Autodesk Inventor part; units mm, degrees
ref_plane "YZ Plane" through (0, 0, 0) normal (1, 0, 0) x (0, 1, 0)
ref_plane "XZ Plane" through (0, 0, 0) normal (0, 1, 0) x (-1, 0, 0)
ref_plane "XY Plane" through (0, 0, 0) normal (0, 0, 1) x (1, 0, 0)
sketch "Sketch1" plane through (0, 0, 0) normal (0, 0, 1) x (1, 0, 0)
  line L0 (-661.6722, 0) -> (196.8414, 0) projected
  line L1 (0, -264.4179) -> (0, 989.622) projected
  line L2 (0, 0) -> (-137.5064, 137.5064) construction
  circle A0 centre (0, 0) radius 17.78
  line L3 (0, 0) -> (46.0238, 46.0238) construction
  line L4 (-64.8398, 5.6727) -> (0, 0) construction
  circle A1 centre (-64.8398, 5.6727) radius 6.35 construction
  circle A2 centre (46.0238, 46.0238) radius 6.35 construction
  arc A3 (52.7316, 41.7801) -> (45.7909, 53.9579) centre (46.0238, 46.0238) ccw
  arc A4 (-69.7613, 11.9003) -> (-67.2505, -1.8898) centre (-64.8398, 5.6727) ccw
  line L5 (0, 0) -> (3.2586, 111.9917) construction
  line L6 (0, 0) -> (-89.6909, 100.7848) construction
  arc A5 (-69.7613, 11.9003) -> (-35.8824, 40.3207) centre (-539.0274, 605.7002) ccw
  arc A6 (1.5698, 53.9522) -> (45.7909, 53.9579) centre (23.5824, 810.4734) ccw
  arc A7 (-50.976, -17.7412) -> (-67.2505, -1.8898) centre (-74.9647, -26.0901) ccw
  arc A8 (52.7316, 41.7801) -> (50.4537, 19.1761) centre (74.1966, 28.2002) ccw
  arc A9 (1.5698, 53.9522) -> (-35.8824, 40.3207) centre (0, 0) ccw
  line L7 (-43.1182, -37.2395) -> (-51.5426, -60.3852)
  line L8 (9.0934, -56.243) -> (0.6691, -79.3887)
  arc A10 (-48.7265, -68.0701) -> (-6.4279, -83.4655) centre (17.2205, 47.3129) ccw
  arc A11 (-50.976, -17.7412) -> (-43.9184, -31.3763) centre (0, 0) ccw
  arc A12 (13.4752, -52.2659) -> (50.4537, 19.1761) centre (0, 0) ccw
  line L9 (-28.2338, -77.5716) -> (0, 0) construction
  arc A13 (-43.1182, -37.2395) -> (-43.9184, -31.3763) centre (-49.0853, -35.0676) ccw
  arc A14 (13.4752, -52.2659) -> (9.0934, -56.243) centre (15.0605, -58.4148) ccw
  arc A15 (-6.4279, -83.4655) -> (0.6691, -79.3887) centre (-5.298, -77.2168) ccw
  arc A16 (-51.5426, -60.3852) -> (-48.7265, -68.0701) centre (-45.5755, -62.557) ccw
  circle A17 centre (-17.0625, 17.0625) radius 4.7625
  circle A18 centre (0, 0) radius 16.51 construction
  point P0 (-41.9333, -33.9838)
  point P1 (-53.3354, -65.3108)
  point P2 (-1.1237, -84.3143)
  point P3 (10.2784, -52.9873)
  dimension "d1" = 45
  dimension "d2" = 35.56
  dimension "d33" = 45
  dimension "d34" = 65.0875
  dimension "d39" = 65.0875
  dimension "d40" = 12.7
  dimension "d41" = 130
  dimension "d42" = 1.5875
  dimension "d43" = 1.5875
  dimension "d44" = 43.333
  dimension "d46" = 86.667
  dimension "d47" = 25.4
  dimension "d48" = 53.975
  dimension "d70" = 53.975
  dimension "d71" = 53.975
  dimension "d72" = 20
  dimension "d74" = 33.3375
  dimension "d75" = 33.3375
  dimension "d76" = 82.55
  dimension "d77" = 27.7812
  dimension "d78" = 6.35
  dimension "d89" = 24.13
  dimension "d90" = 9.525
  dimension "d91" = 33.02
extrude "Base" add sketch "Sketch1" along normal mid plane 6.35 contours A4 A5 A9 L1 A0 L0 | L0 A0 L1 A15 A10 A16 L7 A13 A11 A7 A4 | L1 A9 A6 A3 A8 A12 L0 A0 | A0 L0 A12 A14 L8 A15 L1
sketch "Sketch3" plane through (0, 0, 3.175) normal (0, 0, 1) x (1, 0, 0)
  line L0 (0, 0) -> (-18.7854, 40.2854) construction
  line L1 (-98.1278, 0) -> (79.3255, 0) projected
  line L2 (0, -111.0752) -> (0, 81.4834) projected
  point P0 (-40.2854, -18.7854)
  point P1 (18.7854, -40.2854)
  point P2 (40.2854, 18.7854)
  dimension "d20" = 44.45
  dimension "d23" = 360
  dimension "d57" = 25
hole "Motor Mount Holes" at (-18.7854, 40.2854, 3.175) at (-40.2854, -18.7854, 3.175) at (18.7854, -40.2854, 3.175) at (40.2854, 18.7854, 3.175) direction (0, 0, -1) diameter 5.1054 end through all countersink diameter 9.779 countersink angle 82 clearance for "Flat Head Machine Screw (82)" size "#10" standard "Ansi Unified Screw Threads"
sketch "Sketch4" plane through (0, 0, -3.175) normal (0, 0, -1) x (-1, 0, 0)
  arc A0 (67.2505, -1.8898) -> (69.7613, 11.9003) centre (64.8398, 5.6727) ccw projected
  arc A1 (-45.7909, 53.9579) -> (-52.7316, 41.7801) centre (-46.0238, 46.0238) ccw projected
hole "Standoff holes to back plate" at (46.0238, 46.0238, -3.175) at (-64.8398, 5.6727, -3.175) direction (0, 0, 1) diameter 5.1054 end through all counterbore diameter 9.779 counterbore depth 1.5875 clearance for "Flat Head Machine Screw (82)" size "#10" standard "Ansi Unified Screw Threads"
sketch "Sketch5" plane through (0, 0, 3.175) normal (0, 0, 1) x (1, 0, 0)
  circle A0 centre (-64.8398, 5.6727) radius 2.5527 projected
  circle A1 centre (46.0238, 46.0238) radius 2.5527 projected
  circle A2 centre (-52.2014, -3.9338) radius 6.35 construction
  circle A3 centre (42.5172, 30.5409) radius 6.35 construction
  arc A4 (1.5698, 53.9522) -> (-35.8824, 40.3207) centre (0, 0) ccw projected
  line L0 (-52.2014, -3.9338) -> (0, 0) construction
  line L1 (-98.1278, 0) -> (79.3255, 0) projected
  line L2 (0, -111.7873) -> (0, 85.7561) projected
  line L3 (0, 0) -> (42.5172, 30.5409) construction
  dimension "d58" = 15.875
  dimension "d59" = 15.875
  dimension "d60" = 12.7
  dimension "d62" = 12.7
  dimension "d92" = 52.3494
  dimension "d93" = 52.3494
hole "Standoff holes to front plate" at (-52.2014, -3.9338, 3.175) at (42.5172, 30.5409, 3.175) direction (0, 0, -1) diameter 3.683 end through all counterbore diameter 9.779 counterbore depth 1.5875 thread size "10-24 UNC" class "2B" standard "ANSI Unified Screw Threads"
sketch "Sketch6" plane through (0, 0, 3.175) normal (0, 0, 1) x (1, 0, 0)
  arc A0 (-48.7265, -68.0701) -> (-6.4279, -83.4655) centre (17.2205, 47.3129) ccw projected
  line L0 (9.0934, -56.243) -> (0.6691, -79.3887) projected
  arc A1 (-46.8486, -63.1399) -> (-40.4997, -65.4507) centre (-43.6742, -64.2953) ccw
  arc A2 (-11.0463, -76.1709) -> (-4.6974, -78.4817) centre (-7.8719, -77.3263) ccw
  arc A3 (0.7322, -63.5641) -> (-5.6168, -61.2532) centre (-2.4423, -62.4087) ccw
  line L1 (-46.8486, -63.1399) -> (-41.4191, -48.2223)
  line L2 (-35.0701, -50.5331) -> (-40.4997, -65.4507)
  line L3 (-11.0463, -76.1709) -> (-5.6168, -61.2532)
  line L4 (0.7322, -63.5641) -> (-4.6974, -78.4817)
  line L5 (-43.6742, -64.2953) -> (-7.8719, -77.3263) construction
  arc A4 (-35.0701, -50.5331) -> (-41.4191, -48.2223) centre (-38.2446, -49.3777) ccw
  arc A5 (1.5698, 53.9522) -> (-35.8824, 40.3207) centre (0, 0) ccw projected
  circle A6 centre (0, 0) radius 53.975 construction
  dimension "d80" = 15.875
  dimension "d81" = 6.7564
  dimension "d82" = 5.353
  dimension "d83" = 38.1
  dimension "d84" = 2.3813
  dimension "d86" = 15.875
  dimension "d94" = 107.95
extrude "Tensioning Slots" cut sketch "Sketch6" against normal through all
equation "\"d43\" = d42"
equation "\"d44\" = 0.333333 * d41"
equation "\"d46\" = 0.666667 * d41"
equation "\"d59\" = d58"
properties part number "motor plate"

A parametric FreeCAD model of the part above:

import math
import FreeCAD as App
import Part
import Sketcher

V = App.Vector
Q = App.Units.Quantity

doc = App.newDocument("Part")
body = doc.addObject("PartDesign::Body", "Body")

# Sketch on XY plane
sketch1 = body.newObject("Sketcher::SketchObject", "Sketch")
sketch1.AttachmentSupport = (doc.getObject("XY_Plane"), [""])
sketch1.MapMode = "FlatFace"
sketch1.addGeometry(Part.ArcOfCircle(Part.Circle(V(-64.8, 5.7, 0), V(0, 0, 1), 7.9), math.radians(128), math.radians(252)), False)
sketch1.addGeometry(Part.ArcOfCircle(Part.Circle(V(-75, -26.1, 0), V(0, 0, 1), 25.4), math.radians(19), math.radians(72)), False)
sketch1.addGeometry(Part.ArcOfCircle(Part.Circle(V(0, 0, 0), V(0, 0, 1), 54), math.radians(-160.81), math.radians(-144.46)), False)
sketch1.addGeometry(Part.ArcOfCircle(Part.Circle(V(-49.1, -35.1, 0), V(0, 0, 1), 6.4), math.radians(-20), math.radians(36)), False)
sketch1.addGeometry(Part.LineSegment(V(-43.1, -37.2, 0), V(-51.5, -60.4, 0)), False)
sketch1.addGeometry(Part.ArcOfCircle(Part.Circle(V(-45.6, -62.6, 0), V(0, 0, 1), 6.4), math.radians(160), math.radians(240)), False)
sketch1.addGeometry(Part.ArcOfCircle(Part.Circle(V(17.2, 47.3, 0), V(0, 0, 1), 132.9), math.radians(-119.75), math.radians(-100.25)), False)
sketch1.addGeometry(Part.ArcOfCircle(Part.Circle(V(-5.3, -77.2, 0), V(0, 0, 1), 6.4), math.radians(-100), math.radians(-20)), False)
sketch1.addGeometry(Part.LineSegment(V(0.7, -79.4, 0), V(9.1, -56.2, 0)), False)
sketch1.addGeometry(Part.ArcOfCircle(Part.Circle(V(15.1, -58.4, 0), V(0, 0, 1), 6.3), math.radians(104), math.radians(160)), False)
sketch1.addGeometry(Part.ArcOfCircle(Part.Circle(V(0, 0, 0), V(0, 0, 1), 54), math.radians(-76), math.radians(21)), False)
sketch1.addGeometry(Part.ArcOfCircle(Part.Circle(V(74.2, 28.2, 0), V(0, 0, 1), 25.4), math.radians(148), math.radians(201)), False)
sketch1.addGeometry(Part.ArcOfCircle(Part.Circle(V(46, 46, 0), V(0, 0, 1), 7.9), math.radians(-32), math.radians(92)), False)
sketch1.addGeometry(Part.ArcOfCircle(Part.Circle(V(23.6, 810.5, 0), V(0, 0, 1), 756.9), math.radians(-91.67), math.radians(-88.32)), False)
sketch1.addGeometry(Part.ArcOfCircle(Part.Circle(V(0, 0, 0), V(0, 0, 1), 54), math.radians(88), math.radians(132)), False)
sketch1.addGeometry(Part.ArcOfCircle(Part.Circle(V(-539, 605.6, 0), V(0, 0, 1), 756.7), math.radians(-51.68), math.radians(-48.33)), False)
sketch1.addGeometry(Part.Circle(V(0, 0, 0), V(0, 0, 1), 17.8), False)
sketch1.addGeometry(Part.Circle(V(-17.1, 17.1, 0), V(0, 0, 1), 4.8), False)
sketch1.addConstraint(Sketcher.Constraint("Tangent", 0, 2, 1, 2))
sketch1.addConstraint(Sketcher.Constraint("Tangent", 1, 1, 2, 1))
sketch1.addConstraint(Sketcher.Constraint("Tangent", 2, 2, 3, 2))
sketch1.addConstraint(Sketcher.Constraint("Tangent", 3, 1, 4, 1))
sketch1.addConstraint(Sketcher.Constraint("Tangent", 4, 2, 5, 1))
sketch1.addConstraint(Sketcher.Constraint("Tangent", 5, 2, 6, 1))
sketch1.addConstraint(Sketcher.Constraint("Tangent", 6, 2, 7, 1))
sketch1.addConstraint(Sketcher.Constraint("Tangent", 7, 2, 8, 1))
sketch1.addConstraint(Sketcher.Constraint("Tangent", 8, 2, 9, 2))
sketch1.addConstraint(Sketcher.Constraint("Tangent", 9, 1, 10, 1))
sketch1.addConstraint(Sketcher.Constraint("Tangent", 10, 2, 11, 2))
sketch1.addConstraint(Sketcher.Constraint("Tangent", 11, 1, 12, 1))
sketch1.addConstraint(Sketcher.Constraint("Tangent", 12, 2, 13, 2))
sketch1.addConstraint(Sketcher.Constraint("Tangent", 13, 1, 14, 1))
sketch1.addConstraint(Sketcher.Constraint("Tangent", 14, 2, 15, 2))
sketch1.addConstraint(Sketcher.Constraint("Tangent", 15, 1, 0, 1))
sketch1.addConstraint(Sketcher.Constraint("Coincident", 10, 3, -1, 1))
sketch1.addConstraint(Sketcher.Constraint("Coincident", 14, 3, -1, 1))
sketch1.addConstraint(Sketcher.Constraint("Coincident", 16, 3, -1, 1))
sketch1.addConstraint(Sketcher.Constraint("Equal", 3, 5))
sketch1.addConstraint(Sketcher.Constraint("Equal", 5, 7))
sketch1.addConstraint(Sketcher.Constraint("Equal", 7, 9))
sketch1.addConstraint(Sketcher.Constraint("Equal", 1, 11))
sketch1.addConstraint(Sketcher.Constraint("Equal", 0, 12))
sketch1.addConstraint(Sketcher.Constraint("Equal", 10, 14))
sketch1.addConstraint(Sketcher.Constraint("Parallel", 4, 8))
sketch1.addConstraint(Sketcher.Constraint("Equal", 4, 8))
sketch1.addConstraint(Sketcher.Constraint("Radius", 1, Q("1 in")))
sketch1.addConstraint(Sketcher.Constraint("Diameter", 16, Q("1.4 in")))
sketch1.addConstraint(Sketcher.Constraint("Radius", 3, Q("0.25 in")))
sketch1.addConstraint(Sketcher.Constraint("Diameter", 17, Q("0.375 in")))
sketch1.addConstraint(Sketcher.Constraint("Radius", 10, Q("2.125 in")))
sketch1.addConstraint(Sketcher.Constraint("Angle", 4, Q("-110 deg")))
sketch1.addConstraint(Sketcher.Constraint("Radius", 0, Q("0.3125 in")))
sketch1.addConstraint(Sketcher.Constraint("Radius", 2, 53.973))
sketch1.addConstraint(Sketcher.Constraint("Radius", 6, 132.8994))
sketch1.addConstraint(Sketcher.Constraint("Radius", 13, 756.8713))
sketch1.addConstraint(Sketcher.Constraint("Radius", 15, 756.7457))
sketch1.addConstraint(Sketcher.Constraint("DistanceY", 7, 3, 2, 3, Q("3.04 in")))
sketch1.addConstraint(Sketcher.Constraint("DistanceX", -1, 1, 8, 2, Q("0.358 in")))
sketch1.addConstraint(Sketcher.Constraint("DistanceX", 2, 3, 9, 3, Q("0.593 in")))
sketch1.addConstraint(Sketcher.Constraint("DistanceX", 6, 3, 12, 3, Q("1.134 in")))
sketch1.addConstraint(Sketcher.Constraint("DistanceY", 2, 3, 12, 3, Q("1.812 in")))
sketch1.addConstraint(Sketcher.Constraint("DistanceY", 10, 2, 12, 3, Q("1.057 in")))
sketch1.addConstraint(Sketcher.Constraint("DistanceX", 3, 3, -1, 1, Q("1.9325 in")))
sketch1.addConstraint(Sketcher.Constraint("DistanceY", 0, 2, -1, 1, Q("0.0744 in")))
sketch1.addConstraint(Sketcher.Constraint("DistanceY", 1, 3, 0, 3, Q("1.2505 in")))
sketch1.addConstraint(Sketcher.Constraint("DistanceX", 0, 2, 17, 3, Q("1.9759 in")))
sketch1.addConstraint(Sketcher.Constraint("DistanceY", -1, 1, 17, 3, 17.0625))
pad1 = body.newObject("PartDesign::Pad", "Pad")
pad1.Profile = sketch1
pad1.Length = Q("0.25 in")
pad1.Midplane = True

# Sketch on XY plane
sketch2 = body.newObject("Sketcher::SketchObject", "Sketch001")
sketch2.AttachmentSupport = (doc.getObject("XY_Plane"), [""])
sketch2.MapMode = "FlatFace"
sketch2.AttachmentOffset = App.Placement(V(0, 0, 0.125 * 25.4), App.Rotation())
sketch2.addGeometry(Part.Circle(V(-18.8, 40.3, 0), V(0, 0, 1), 2.6), False)
sketch2.addGeometry(Part.Circle(V(-40.3, -18.8, 0), V(0, 0, 1), 2.6), False)
sketch2.addGeometry(Part.Circle(V(18.8, -40.3, 0), V(0, 0, 1), 2.6), False)
sketch2.addGeometry(Part.Circle(V(40.3, 18.8, 0), V(0, 0, 1), 2.6), False)
sketch2.addConstraint(Sketcher.Constraint("Equal", 0, 1))
sketch2.addConstraint(Sketcher.Constraint("Equal", 1, 2))
sketch2.addConstraint(Sketcher.Constraint("Equal", 2, 3))
sketch2.addConstraint(Sketcher.Constraint("Symmetric", 0, 3, 2, 3, -1, 1))
sketch2.addConstraint(Sketcher.Constraint("Symmetric", 1, 3, 3, 3, -1, 1))
sketch2.addConstraint(Sketcher.Constraint("Diameter", 0, Q("0.201 in")))
sketch2.addConstraint(Sketcher.Constraint("DistanceX", 0, 3, -1, 1, 18.7854))
sketch2.addConstraint(Sketcher.Constraint("DistanceY", -1, 1, 0, 3, 40.2854))
sketch2.addConstraint(Sketcher.Constraint("DistanceX", 1, 3, -1, 1, 40.2854))
sketch2.addConstraint(Sketcher.Constraint("DistanceY", 1, 3, -1, 1, 18.7854))
doc.recompute()
hole = body.newObject("PartDesign::Hole", "Hole")
hole.Profile = sketch2
hole.ThreadType = "None"
hole.Diameter = Q("0.201 in")
hole.DepthType = "ThroughAll"
hole.HoleCutType = "Countersink"
hole.HoleCutDiameter = Q("0.385 in")
hole.HoleCutCountersinkAngle = 82

# Sketch on XY plane
sketch3 = body.newObject("Sketcher::SketchObject", "Sketch002")
sketch3.AttachmentSupport = (doc.getObject("XY_Plane"), [""])
sketch3.MapMode = "FlatFace"
sketch3.AttachmentOffset = App.Placement(V(0, 0, -0.125 * 25.4), App.Rotation())
sketch3.addGeometry(Part.Circle(V(46, 46, 0), V(0, 0, 1), 2.6), False)
sketch3.addGeometry(Part.Circle(V(-64.8, 5.7, 0), V(0, 0, 1), 2.6), False)
sketch3.addConstraint(Sketcher.Constraint("Equal", 0, 1))
sketch3.addConstraint(Sketcher.Constraint("Diameter", 0, Q("0.201 in")))
sketch3.addConstraint(Sketcher.Constraint("DistanceX", 1, 3, 0, 3, Q("4.3647 in")))
sketch3.addConstraint(Sketcher.Constraint("DistanceX", -1, 1, 0, 3, 46.0238))
sketch3.addConstraint(Sketcher.Constraint("DistanceY", -1, 1, 0, 3, 46.0238))
sketch3.addConstraint(Sketcher.Constraint("DistanceY", -1, 1, 1, 3, 5.6727))
doc.recompute()
hole2 = body.newObject("PartDesign::Hole", "Hole001")
hole2.Profile = sketch3
hole2.ThreadType = "None"
hole2.Diameter = Q("0.201 in")
hole2.DepthType = "ThroughAll"
hole2.HoleCutType = "Counterbore"
hole2.HoleCutDiameter = Q("0.385 in")
hole2.HoleCutDepth = Q("0.0625 in")
hole2.Reversed = True

# Sketch on XY plane
sketch4 = body.newObject("Sketcher::SketchObject", "Sketch003")
sketch4.AttachmentSupport = (doc.getObject("XY_Plane"), [""])
sketch4.MapMode = "FlatFace"
sketch4.AttachmentOffset = App.Placement(V(0, 0, 0.125 * 25.4), App.Rotation())
sketch4.addGeometry(Part.Circle(V(-52.2, -3.9, 0), V(0, 0, 1), 1.8), False)
sketch4.addGeometry(Part.Circle(V(42.5, 30.5, 0), V(0, 0, 1), 1.8), False)
sketch4.addConstraint(Sketcher.Constraint("Equal", 0, 1))
sketch4.addConstraint(Sketcher.Constraint("Diameter", 0, Q("0.145 in")))
sketch4.addConstraint(Sketcher.Constraint("DistanceX", -1, 1, 1, 3, Q("1.6739 in")))
sketch4.addConstraint(Sketcher.Constraint("DistanceY", -1, 1, 1, 3, Q("1.2024 in")))
sketch4.addConstraint(Sketcher.Constraint("DistanceX", 0, 3, -1, 1, 52.2014))
sketch4.addConstraint(Sketcher.Constraint("DistanceY", 0, 3, -1, 1, 3.9338))
doc.recompute()
hole3 = body.newObject("PartDesign::Hole", "Hole002")
hole3.Profile = sketch4
hole3.ThreadType = "None"
hole3.Diameter = Q("0.145 in")
hole3.DepthType = "ThroughAll"
hole3.HoleCutType = "Counterbore"
hole3.HoleCutDiameter = Q("0.385 in")
hole3.HoleCutDepth = Q("0.0625 in")

# Sketch on XY plane
sketch5 = body.newObject("Sketcher::SketchObject", "Sketch004")
sketch5.AttachmentSupport = (doc.getObject("XY_Plane"), [""])
sketch5.MapMode = "FlatFace"
sketch5.AttachmentOffset = App.Placement(V(0, 0, 0.125 * 25.4), App.Rotation())
sketch5.addGeometry(Part.LineSegment(V(-41.4, -48.2, 0), V(-46.8, -63.1, 0)), False)
sketch5.addGeometry(Part.ArcOfCircle(Part.Circle(V(-43.7, -64.3, 0), V(0, 0, 1), 3.4), math.radians(160), math.radians(340)), False)
sketch5.addGeometry(Part.LineSegment(V(-40.5, -65.5, 0), V(-35.1, -50.5, 0)), False)
sketch5.addGeometry(Part.ArcOfCircle(Part.Circle(V(-38.2, -49.4, 0), V(0, 0, 1), 3.4), math.radians(-20), math.radians(160)), False)
sketch5.addGeometry(Part.LineSegment(V(-5.6, -61.3, 0), V(-11, -76.2, 0)), False)
sketch5.addGeometry(Part.ArcOfCircle(Part.Circle(V(-7.9, -77.3, 0), V(0, 0, 1), 3.4), math.radians(160), math.radians(340)), False)
sketch5.addGeometry(Part.LineSegment(V(-4.7, -78.5, 0), V(0.7, -63.6, 0)), False)
sketch5.addGeometry(Part.ArcOfCircle(Part.Circle(V(-2.4, -62.4, 0), V(0, 0, 1), 3.4), math.radians(-20), math.radians(160)), False)
sketch5.addConstraint(Sketcher.Constraint("Tangent", 0, 2, 1, 1))
sketch5.addConstraint(Sketcher.Constraint("Tangent", 1, 2, 2, 1))
sketch5.addConstraint(Sketcher.Constraint("Tangent", 2, 2, 3, 1))
sketch5.addConstraint(Sketcher.Constraint("Tangent", 3, 2, 0, 1))
sketch5.addConstraint(Sketcher.Constraint("Tangent", 4, 2, 5, 1))
sketch5.addConstraint(Sketcher.Constraint("Tangent", 5, 2, 6, 1))
sketch5.addConstraint(Sketcher.Constraint("Tangent", 6, 2, 7, 1))
sketch5.addConstraint(Sketcher.Constraint("Tangent", 7, 2, 4, 1))
sketch5.addConstraint(Sketcher.Constraint("Equal", 1, 3))
sketch5.addConstraint(Sketcher.Constraint("Equal", 3, 5))
sketch5.addConstraint(Sketcher.Constraint("Equal", 5, 7))
sketch5.addConstraint(Sketcher.Constraint("Parallel", 2, 4))
sketch5.addConstraint(Sketcher.Constraint("Equal", 2, 4))
sketch5.addConstraint(Sketcher.Constraint("Radius", 1, Q("0.133 in")))
sketch5.addConstraint(Sketcher.Constraint("Distance", 0, Q("0.625 in")))
sketch5.addConstraint(Sketcher.Constraint("Angle", 0, Q("-109.9998 deg")))
sketch5.addConstraint(Sketcher.Constraint("DistanceY", 3, 3, -1, 1, Q("1.944 in")))
sketch5.addConstraint(Sketcher.Constraint("DistanceX", 3, 3, -1, 1, Q("1.5057 in")))
sketch5.addConstraint(Sketcher.Constraint("DistanceX", 4, 2, -1, 1, Q("0.4349 in")))
sketch5.addConstraint(Sketcher.Constraint("DistanceY", 5, 3, -1, 1, 77.3263))
pocket1 = body.newObject("PartDesign::Pocket", "Pocket")
pocket1.Profile = sketch5
pocket1.Type = "ThroughAll"

doc.recompute()
